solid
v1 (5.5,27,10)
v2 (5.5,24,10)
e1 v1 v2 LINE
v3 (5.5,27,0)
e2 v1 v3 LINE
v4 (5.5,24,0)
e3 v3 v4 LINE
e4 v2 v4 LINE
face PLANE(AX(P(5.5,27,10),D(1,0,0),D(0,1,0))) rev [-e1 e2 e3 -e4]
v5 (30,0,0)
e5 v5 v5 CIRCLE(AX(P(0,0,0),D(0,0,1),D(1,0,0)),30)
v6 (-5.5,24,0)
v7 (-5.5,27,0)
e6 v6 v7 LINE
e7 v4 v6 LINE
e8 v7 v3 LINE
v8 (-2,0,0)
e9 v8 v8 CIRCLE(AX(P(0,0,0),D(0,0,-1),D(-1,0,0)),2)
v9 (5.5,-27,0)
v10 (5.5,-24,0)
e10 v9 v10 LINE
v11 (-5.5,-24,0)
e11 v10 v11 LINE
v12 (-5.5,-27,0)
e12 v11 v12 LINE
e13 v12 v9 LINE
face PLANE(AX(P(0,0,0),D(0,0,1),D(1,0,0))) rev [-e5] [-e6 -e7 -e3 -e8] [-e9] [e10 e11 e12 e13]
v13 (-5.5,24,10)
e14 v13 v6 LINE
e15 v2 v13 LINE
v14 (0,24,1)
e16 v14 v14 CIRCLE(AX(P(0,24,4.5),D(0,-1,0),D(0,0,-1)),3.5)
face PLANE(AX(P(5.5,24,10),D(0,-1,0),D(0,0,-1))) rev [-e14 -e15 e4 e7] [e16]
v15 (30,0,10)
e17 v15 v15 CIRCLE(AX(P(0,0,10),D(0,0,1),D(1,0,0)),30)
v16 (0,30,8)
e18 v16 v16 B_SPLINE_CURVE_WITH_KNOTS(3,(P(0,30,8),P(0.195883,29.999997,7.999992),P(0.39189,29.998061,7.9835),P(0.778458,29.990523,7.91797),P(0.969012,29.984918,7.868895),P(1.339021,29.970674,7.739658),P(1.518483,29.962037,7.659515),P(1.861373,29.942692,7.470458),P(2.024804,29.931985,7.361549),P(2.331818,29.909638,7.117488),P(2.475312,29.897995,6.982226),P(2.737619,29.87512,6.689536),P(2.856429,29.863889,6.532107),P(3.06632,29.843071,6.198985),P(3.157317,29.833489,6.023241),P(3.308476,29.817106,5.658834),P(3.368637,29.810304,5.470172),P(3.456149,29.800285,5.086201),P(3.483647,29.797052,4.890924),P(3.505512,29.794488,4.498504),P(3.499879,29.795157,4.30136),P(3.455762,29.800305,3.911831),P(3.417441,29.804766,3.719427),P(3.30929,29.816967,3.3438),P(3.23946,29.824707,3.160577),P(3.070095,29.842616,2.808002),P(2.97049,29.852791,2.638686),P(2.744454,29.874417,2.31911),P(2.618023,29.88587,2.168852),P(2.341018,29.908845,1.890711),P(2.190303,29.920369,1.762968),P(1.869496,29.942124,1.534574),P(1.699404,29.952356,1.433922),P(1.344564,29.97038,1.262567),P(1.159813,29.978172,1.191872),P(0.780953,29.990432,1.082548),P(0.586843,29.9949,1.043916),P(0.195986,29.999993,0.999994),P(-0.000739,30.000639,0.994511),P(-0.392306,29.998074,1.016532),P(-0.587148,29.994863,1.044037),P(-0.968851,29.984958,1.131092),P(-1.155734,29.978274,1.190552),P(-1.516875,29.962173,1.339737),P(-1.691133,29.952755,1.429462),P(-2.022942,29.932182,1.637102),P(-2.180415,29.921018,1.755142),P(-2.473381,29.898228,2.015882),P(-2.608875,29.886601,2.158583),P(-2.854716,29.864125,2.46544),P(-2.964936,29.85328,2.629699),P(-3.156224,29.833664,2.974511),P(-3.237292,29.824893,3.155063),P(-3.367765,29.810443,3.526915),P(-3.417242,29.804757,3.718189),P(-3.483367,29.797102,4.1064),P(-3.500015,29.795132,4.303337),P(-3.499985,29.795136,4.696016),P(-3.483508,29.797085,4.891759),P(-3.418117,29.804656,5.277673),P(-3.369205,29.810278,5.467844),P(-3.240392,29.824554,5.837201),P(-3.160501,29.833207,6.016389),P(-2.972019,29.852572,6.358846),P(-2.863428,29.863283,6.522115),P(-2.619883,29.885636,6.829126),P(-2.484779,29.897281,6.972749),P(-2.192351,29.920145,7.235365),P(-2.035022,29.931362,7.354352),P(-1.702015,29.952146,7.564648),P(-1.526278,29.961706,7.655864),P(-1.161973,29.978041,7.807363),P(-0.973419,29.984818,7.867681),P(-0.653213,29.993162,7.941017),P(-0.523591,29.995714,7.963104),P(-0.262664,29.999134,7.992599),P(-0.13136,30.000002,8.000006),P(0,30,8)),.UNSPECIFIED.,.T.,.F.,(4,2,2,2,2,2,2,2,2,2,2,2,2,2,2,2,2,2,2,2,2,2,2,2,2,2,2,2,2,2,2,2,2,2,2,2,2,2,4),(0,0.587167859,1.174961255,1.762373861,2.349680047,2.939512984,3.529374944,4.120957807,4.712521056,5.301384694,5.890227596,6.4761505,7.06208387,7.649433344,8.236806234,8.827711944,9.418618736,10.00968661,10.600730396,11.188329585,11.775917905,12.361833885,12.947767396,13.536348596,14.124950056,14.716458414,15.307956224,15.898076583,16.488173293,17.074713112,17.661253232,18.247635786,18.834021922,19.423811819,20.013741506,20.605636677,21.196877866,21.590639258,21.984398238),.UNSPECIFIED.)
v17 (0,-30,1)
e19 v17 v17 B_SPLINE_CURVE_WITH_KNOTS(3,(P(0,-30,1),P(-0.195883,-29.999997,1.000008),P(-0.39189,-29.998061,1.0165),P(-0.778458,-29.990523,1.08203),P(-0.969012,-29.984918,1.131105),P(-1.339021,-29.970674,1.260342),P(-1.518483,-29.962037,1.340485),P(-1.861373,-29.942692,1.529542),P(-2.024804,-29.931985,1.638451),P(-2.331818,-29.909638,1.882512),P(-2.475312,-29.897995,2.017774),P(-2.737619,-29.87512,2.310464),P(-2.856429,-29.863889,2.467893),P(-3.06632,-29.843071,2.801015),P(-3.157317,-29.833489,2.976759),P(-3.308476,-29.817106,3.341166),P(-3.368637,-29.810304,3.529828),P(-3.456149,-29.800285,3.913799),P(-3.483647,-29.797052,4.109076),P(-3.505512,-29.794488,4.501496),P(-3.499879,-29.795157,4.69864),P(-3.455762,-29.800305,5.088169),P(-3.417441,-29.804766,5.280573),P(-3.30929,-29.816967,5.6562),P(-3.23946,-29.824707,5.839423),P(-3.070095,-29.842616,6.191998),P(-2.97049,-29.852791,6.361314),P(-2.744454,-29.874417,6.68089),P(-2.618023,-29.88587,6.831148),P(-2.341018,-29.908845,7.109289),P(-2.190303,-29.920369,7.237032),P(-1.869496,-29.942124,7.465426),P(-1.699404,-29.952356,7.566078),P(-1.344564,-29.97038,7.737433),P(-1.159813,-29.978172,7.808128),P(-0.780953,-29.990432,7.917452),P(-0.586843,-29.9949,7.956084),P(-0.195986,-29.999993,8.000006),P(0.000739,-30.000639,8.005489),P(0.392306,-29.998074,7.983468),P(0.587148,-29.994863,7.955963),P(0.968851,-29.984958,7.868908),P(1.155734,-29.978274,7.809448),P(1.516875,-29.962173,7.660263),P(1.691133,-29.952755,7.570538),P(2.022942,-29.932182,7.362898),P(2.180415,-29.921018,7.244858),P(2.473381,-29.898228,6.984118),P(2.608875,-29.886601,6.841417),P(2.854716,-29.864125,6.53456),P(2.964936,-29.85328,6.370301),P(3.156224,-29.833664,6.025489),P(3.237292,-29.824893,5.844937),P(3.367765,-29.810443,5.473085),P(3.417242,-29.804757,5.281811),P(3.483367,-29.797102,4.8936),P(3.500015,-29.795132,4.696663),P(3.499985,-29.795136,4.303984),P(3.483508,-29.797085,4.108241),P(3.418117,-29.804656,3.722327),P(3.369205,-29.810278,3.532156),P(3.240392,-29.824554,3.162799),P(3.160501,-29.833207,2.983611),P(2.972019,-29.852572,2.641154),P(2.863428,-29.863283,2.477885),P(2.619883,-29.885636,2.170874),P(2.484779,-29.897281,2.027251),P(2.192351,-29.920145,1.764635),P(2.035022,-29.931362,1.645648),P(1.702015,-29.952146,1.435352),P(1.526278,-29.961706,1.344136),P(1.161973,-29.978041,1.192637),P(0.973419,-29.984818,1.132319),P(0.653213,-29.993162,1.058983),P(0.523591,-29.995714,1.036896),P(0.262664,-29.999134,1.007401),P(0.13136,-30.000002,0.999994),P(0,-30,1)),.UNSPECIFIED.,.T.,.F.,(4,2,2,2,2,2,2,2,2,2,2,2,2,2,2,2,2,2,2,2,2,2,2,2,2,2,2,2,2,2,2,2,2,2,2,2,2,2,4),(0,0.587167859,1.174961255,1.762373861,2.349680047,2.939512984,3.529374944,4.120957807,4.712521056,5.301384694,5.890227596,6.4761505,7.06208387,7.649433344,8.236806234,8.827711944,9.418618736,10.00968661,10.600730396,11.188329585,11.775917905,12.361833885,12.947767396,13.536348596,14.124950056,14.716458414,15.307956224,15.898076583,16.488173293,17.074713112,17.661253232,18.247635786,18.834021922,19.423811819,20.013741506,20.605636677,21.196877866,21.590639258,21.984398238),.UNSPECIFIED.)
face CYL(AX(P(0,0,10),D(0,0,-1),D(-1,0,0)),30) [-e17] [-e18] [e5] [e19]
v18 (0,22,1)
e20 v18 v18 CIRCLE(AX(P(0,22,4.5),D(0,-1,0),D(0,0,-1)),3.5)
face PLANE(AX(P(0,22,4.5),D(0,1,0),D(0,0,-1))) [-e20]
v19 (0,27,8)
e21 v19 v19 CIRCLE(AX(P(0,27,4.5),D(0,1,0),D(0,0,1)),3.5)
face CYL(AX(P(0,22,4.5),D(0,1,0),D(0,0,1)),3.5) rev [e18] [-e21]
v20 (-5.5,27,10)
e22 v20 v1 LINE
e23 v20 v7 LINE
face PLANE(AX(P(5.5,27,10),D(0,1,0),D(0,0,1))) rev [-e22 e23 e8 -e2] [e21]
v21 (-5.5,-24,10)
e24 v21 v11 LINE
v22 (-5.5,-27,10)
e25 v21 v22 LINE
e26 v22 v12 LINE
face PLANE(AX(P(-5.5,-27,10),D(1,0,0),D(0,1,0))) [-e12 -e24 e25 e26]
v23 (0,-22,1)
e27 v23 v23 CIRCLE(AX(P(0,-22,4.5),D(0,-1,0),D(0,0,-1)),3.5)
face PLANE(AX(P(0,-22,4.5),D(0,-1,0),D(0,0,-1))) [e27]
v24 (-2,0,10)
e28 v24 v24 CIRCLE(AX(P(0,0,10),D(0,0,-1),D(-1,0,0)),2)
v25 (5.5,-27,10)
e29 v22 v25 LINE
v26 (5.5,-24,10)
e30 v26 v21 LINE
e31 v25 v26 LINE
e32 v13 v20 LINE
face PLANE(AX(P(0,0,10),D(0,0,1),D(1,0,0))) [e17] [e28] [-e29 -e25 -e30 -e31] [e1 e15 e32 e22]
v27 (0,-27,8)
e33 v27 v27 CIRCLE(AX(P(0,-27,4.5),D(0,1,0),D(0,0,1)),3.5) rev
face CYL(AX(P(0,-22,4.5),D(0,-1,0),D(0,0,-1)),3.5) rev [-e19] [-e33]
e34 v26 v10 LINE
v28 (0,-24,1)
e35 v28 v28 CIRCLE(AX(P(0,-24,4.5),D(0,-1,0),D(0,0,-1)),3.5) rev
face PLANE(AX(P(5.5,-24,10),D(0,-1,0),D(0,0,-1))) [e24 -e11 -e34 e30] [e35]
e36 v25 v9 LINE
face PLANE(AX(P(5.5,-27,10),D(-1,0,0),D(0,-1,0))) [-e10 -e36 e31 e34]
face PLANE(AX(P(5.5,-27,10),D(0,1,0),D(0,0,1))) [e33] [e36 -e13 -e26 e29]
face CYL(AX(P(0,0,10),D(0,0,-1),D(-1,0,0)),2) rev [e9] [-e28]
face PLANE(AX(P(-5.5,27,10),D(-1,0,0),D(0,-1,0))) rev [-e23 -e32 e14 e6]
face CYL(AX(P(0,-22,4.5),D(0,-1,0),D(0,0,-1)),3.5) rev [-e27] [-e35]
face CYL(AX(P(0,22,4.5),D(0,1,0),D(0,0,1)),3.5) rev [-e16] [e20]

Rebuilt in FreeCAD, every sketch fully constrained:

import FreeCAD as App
import Part
import Sketcher
from FreeCAD import Vector
Q = App.Units.Quantity

doc = App.newDocument("Part")
body = doc.addObject("PartDesign::Body", "Body")

# Sketch on XY plane
sketch1 = doc.addObject("Sketcher::SketchObject", "Sketch")
body.addObject(sketch1)
sketch1.AttachmentSupport = (doc.XY_Plane, [""])
sketch1.MapMode = "FlatFace"
sketch1.addGeometry(Part.Circle(Vector(0, 0, 0), Vector(0, 0, 1), 30), False)
sketch1.addConstraint(Sketcher.Constraint("Coincident", 0, 3, -1, 1))
sketch1.addConstraint(Sketcher.Constraint("Diameter", 0, Q("60 mm")))
pad1 = doc.addObject("PartDesign::Pad", "Pad")
body.addObject(pad1)
pad1.Profile = sketch1
pad1.Length = 10

# Sketch on XZ plane
sketch2 = doc.addObject("Sketcher::SketchObject", "Sketch001")
body.addObject(sketch2)
sketch2.AttachmentSupport = (doc.XZ_Plane, [""])
sketch2.MapMode = "FlatFace"
sketch2.AttachmentOffset = App.Placement(Vector(0, 0, 30), App.Rotation())
sketch2.addGeometry(Part.Circle(Vector(0, 4.5, 0), Vector(0, 0, 1), 3.5), False)
sketch2.addConstraint(Sketcher.Constraint("PointOnObject", 0, 3, -2))
sketch2.addConstraint(Sketcher.Constraint("Diameter", 0, Q("7 mm")))
sketch2.addConstraint(Sketcher.Constraint("DistanceY", -1, 1, 0, 3, Q("4.5 mm")))
pocket1 = doc.addObject("PartDesign::Pocket", "Pocket")
body.addObject(pocket1)
pocket1.Profile = sketch2
pocket1.Length = 8
doc.recompute()

mirrored = doc.addObject("PartDesign::Mirrored", "Mirrored")
body.addObject(mirrored)
mirrored.Originals = [pocket1]
mirrored.MirrorPlane = (doc.XZ_Plane, [""])
body.Tip = mirrored

# Sketch on XY plane
sketch3 = doc.addObject("Sketcher::SketchObject", "Sketch002")
body.addObject(sketch3)
sketch3.AttachmentSupport = (doc.XY_Plane, [""])
sketch3.MapMode = "FlatFace"
sketch3.addGeometry(Part.LineSegment(Vector(5.5, 27, 0), Vector(5.5, 24, 0)), False)
sketch3.addGeometry(Part.LineSegment(Vector(5.5, 24, 0), Vector(-5.5, 24, 0)), False)
sketch3.addGeometry(Part.LineSegment(Vector(-5.5, 24, 0), Vector(-5.5, 27, 0)), False)
sketch3.addGeometry(Part.LineSegment(Vector(-5.5, 27, 0), Vector(5.5, 27, 0)), False)
sketch3.addConstraint(Sketcher.Constraint("Coincident", 0, 2, 1, 1))
sketch3.addConstraint(Sketcher.Constraint("Coincident", 1, 2, 2, 1))
sketch3.addConstraint(Sketcher.Constraint("Coincident", 2, 2, 3, 1))
sketch3.addConstraint(Sketcher.Constraint("Coincident", 3, 2, 0, 1))
sketch3.addConstraint(Sketcher.Constraint("Vertical", 0))
sketch3.addConstraint(Sketcher.Constraint("Horizontal", 1))
sketch3.addConstraint(Sketcher.Constraint("Vertical", 2))
sketch3.addConstraint(Sketcher.Constraint("Horizontal", 3))
sketch3.addConstraint(Sketcher.Constraint("DistanceX", 1, 2, 1, 1, Q("11 mm")))
sketch3.addConstraint(Sketcher.Constraint("DistanceY", 0, 2, 0, 1, Q("3 mm")))
sketch3.addConstraint(Sketcher.Constraint("DistanceY", -1, 1, 0, 2, Q("24 mm")))
sketch3.addConstraint(Sketcher.Constraint("DistanceX", -1, 1, 0, 2, Q("5.5 mm")))
pocket2 = doc.addObject("PartDesign::Pocket", "Pocket001")
body.addObject(pocket2)
pocket2.Profile = sketch3
pocket2.Length = 10
pocket2.Reversed = True
doc.recompute()

mirrored2 = doc.addObject("PartDesign::Mirrored", "Mirrored001")
body.addObject(mirrored2)
mirrored2.Originals = [pocket2]
mirrored2.MirrorPlane = (doc.XZ_Plane, [""])
body.Tip = mirrored2

# Sketch on XY plane
sketch4 = doc.addObject("Sketcher::SketchObject", "Sketch003")
body.addObject(sketch4)
sketch4.AttachmentSupport = (doc.XY_Plane, [""])
sketch4.MapMode = "FlatFace"
sketch4.addGeometry(Part.Circle(Vector(0, 0, 0), Vector(0, 0, 1), 2), False)
sketch4.addConstraint(Sketcher.Constraint("Coincident", 0, 3, -1, 1))
sketch4.addConstraint(Sketcher.Constraint("Diameter", 0, Q("4 mm")))
pocket3 = doc.addObject("PartDesign::Pocket", "Pocket002")
body.addObject(pocket3)
pocket3.Profile = sketch4
pocket3.Length = 10
pocket3.Reversed = True

doc.recompute()
